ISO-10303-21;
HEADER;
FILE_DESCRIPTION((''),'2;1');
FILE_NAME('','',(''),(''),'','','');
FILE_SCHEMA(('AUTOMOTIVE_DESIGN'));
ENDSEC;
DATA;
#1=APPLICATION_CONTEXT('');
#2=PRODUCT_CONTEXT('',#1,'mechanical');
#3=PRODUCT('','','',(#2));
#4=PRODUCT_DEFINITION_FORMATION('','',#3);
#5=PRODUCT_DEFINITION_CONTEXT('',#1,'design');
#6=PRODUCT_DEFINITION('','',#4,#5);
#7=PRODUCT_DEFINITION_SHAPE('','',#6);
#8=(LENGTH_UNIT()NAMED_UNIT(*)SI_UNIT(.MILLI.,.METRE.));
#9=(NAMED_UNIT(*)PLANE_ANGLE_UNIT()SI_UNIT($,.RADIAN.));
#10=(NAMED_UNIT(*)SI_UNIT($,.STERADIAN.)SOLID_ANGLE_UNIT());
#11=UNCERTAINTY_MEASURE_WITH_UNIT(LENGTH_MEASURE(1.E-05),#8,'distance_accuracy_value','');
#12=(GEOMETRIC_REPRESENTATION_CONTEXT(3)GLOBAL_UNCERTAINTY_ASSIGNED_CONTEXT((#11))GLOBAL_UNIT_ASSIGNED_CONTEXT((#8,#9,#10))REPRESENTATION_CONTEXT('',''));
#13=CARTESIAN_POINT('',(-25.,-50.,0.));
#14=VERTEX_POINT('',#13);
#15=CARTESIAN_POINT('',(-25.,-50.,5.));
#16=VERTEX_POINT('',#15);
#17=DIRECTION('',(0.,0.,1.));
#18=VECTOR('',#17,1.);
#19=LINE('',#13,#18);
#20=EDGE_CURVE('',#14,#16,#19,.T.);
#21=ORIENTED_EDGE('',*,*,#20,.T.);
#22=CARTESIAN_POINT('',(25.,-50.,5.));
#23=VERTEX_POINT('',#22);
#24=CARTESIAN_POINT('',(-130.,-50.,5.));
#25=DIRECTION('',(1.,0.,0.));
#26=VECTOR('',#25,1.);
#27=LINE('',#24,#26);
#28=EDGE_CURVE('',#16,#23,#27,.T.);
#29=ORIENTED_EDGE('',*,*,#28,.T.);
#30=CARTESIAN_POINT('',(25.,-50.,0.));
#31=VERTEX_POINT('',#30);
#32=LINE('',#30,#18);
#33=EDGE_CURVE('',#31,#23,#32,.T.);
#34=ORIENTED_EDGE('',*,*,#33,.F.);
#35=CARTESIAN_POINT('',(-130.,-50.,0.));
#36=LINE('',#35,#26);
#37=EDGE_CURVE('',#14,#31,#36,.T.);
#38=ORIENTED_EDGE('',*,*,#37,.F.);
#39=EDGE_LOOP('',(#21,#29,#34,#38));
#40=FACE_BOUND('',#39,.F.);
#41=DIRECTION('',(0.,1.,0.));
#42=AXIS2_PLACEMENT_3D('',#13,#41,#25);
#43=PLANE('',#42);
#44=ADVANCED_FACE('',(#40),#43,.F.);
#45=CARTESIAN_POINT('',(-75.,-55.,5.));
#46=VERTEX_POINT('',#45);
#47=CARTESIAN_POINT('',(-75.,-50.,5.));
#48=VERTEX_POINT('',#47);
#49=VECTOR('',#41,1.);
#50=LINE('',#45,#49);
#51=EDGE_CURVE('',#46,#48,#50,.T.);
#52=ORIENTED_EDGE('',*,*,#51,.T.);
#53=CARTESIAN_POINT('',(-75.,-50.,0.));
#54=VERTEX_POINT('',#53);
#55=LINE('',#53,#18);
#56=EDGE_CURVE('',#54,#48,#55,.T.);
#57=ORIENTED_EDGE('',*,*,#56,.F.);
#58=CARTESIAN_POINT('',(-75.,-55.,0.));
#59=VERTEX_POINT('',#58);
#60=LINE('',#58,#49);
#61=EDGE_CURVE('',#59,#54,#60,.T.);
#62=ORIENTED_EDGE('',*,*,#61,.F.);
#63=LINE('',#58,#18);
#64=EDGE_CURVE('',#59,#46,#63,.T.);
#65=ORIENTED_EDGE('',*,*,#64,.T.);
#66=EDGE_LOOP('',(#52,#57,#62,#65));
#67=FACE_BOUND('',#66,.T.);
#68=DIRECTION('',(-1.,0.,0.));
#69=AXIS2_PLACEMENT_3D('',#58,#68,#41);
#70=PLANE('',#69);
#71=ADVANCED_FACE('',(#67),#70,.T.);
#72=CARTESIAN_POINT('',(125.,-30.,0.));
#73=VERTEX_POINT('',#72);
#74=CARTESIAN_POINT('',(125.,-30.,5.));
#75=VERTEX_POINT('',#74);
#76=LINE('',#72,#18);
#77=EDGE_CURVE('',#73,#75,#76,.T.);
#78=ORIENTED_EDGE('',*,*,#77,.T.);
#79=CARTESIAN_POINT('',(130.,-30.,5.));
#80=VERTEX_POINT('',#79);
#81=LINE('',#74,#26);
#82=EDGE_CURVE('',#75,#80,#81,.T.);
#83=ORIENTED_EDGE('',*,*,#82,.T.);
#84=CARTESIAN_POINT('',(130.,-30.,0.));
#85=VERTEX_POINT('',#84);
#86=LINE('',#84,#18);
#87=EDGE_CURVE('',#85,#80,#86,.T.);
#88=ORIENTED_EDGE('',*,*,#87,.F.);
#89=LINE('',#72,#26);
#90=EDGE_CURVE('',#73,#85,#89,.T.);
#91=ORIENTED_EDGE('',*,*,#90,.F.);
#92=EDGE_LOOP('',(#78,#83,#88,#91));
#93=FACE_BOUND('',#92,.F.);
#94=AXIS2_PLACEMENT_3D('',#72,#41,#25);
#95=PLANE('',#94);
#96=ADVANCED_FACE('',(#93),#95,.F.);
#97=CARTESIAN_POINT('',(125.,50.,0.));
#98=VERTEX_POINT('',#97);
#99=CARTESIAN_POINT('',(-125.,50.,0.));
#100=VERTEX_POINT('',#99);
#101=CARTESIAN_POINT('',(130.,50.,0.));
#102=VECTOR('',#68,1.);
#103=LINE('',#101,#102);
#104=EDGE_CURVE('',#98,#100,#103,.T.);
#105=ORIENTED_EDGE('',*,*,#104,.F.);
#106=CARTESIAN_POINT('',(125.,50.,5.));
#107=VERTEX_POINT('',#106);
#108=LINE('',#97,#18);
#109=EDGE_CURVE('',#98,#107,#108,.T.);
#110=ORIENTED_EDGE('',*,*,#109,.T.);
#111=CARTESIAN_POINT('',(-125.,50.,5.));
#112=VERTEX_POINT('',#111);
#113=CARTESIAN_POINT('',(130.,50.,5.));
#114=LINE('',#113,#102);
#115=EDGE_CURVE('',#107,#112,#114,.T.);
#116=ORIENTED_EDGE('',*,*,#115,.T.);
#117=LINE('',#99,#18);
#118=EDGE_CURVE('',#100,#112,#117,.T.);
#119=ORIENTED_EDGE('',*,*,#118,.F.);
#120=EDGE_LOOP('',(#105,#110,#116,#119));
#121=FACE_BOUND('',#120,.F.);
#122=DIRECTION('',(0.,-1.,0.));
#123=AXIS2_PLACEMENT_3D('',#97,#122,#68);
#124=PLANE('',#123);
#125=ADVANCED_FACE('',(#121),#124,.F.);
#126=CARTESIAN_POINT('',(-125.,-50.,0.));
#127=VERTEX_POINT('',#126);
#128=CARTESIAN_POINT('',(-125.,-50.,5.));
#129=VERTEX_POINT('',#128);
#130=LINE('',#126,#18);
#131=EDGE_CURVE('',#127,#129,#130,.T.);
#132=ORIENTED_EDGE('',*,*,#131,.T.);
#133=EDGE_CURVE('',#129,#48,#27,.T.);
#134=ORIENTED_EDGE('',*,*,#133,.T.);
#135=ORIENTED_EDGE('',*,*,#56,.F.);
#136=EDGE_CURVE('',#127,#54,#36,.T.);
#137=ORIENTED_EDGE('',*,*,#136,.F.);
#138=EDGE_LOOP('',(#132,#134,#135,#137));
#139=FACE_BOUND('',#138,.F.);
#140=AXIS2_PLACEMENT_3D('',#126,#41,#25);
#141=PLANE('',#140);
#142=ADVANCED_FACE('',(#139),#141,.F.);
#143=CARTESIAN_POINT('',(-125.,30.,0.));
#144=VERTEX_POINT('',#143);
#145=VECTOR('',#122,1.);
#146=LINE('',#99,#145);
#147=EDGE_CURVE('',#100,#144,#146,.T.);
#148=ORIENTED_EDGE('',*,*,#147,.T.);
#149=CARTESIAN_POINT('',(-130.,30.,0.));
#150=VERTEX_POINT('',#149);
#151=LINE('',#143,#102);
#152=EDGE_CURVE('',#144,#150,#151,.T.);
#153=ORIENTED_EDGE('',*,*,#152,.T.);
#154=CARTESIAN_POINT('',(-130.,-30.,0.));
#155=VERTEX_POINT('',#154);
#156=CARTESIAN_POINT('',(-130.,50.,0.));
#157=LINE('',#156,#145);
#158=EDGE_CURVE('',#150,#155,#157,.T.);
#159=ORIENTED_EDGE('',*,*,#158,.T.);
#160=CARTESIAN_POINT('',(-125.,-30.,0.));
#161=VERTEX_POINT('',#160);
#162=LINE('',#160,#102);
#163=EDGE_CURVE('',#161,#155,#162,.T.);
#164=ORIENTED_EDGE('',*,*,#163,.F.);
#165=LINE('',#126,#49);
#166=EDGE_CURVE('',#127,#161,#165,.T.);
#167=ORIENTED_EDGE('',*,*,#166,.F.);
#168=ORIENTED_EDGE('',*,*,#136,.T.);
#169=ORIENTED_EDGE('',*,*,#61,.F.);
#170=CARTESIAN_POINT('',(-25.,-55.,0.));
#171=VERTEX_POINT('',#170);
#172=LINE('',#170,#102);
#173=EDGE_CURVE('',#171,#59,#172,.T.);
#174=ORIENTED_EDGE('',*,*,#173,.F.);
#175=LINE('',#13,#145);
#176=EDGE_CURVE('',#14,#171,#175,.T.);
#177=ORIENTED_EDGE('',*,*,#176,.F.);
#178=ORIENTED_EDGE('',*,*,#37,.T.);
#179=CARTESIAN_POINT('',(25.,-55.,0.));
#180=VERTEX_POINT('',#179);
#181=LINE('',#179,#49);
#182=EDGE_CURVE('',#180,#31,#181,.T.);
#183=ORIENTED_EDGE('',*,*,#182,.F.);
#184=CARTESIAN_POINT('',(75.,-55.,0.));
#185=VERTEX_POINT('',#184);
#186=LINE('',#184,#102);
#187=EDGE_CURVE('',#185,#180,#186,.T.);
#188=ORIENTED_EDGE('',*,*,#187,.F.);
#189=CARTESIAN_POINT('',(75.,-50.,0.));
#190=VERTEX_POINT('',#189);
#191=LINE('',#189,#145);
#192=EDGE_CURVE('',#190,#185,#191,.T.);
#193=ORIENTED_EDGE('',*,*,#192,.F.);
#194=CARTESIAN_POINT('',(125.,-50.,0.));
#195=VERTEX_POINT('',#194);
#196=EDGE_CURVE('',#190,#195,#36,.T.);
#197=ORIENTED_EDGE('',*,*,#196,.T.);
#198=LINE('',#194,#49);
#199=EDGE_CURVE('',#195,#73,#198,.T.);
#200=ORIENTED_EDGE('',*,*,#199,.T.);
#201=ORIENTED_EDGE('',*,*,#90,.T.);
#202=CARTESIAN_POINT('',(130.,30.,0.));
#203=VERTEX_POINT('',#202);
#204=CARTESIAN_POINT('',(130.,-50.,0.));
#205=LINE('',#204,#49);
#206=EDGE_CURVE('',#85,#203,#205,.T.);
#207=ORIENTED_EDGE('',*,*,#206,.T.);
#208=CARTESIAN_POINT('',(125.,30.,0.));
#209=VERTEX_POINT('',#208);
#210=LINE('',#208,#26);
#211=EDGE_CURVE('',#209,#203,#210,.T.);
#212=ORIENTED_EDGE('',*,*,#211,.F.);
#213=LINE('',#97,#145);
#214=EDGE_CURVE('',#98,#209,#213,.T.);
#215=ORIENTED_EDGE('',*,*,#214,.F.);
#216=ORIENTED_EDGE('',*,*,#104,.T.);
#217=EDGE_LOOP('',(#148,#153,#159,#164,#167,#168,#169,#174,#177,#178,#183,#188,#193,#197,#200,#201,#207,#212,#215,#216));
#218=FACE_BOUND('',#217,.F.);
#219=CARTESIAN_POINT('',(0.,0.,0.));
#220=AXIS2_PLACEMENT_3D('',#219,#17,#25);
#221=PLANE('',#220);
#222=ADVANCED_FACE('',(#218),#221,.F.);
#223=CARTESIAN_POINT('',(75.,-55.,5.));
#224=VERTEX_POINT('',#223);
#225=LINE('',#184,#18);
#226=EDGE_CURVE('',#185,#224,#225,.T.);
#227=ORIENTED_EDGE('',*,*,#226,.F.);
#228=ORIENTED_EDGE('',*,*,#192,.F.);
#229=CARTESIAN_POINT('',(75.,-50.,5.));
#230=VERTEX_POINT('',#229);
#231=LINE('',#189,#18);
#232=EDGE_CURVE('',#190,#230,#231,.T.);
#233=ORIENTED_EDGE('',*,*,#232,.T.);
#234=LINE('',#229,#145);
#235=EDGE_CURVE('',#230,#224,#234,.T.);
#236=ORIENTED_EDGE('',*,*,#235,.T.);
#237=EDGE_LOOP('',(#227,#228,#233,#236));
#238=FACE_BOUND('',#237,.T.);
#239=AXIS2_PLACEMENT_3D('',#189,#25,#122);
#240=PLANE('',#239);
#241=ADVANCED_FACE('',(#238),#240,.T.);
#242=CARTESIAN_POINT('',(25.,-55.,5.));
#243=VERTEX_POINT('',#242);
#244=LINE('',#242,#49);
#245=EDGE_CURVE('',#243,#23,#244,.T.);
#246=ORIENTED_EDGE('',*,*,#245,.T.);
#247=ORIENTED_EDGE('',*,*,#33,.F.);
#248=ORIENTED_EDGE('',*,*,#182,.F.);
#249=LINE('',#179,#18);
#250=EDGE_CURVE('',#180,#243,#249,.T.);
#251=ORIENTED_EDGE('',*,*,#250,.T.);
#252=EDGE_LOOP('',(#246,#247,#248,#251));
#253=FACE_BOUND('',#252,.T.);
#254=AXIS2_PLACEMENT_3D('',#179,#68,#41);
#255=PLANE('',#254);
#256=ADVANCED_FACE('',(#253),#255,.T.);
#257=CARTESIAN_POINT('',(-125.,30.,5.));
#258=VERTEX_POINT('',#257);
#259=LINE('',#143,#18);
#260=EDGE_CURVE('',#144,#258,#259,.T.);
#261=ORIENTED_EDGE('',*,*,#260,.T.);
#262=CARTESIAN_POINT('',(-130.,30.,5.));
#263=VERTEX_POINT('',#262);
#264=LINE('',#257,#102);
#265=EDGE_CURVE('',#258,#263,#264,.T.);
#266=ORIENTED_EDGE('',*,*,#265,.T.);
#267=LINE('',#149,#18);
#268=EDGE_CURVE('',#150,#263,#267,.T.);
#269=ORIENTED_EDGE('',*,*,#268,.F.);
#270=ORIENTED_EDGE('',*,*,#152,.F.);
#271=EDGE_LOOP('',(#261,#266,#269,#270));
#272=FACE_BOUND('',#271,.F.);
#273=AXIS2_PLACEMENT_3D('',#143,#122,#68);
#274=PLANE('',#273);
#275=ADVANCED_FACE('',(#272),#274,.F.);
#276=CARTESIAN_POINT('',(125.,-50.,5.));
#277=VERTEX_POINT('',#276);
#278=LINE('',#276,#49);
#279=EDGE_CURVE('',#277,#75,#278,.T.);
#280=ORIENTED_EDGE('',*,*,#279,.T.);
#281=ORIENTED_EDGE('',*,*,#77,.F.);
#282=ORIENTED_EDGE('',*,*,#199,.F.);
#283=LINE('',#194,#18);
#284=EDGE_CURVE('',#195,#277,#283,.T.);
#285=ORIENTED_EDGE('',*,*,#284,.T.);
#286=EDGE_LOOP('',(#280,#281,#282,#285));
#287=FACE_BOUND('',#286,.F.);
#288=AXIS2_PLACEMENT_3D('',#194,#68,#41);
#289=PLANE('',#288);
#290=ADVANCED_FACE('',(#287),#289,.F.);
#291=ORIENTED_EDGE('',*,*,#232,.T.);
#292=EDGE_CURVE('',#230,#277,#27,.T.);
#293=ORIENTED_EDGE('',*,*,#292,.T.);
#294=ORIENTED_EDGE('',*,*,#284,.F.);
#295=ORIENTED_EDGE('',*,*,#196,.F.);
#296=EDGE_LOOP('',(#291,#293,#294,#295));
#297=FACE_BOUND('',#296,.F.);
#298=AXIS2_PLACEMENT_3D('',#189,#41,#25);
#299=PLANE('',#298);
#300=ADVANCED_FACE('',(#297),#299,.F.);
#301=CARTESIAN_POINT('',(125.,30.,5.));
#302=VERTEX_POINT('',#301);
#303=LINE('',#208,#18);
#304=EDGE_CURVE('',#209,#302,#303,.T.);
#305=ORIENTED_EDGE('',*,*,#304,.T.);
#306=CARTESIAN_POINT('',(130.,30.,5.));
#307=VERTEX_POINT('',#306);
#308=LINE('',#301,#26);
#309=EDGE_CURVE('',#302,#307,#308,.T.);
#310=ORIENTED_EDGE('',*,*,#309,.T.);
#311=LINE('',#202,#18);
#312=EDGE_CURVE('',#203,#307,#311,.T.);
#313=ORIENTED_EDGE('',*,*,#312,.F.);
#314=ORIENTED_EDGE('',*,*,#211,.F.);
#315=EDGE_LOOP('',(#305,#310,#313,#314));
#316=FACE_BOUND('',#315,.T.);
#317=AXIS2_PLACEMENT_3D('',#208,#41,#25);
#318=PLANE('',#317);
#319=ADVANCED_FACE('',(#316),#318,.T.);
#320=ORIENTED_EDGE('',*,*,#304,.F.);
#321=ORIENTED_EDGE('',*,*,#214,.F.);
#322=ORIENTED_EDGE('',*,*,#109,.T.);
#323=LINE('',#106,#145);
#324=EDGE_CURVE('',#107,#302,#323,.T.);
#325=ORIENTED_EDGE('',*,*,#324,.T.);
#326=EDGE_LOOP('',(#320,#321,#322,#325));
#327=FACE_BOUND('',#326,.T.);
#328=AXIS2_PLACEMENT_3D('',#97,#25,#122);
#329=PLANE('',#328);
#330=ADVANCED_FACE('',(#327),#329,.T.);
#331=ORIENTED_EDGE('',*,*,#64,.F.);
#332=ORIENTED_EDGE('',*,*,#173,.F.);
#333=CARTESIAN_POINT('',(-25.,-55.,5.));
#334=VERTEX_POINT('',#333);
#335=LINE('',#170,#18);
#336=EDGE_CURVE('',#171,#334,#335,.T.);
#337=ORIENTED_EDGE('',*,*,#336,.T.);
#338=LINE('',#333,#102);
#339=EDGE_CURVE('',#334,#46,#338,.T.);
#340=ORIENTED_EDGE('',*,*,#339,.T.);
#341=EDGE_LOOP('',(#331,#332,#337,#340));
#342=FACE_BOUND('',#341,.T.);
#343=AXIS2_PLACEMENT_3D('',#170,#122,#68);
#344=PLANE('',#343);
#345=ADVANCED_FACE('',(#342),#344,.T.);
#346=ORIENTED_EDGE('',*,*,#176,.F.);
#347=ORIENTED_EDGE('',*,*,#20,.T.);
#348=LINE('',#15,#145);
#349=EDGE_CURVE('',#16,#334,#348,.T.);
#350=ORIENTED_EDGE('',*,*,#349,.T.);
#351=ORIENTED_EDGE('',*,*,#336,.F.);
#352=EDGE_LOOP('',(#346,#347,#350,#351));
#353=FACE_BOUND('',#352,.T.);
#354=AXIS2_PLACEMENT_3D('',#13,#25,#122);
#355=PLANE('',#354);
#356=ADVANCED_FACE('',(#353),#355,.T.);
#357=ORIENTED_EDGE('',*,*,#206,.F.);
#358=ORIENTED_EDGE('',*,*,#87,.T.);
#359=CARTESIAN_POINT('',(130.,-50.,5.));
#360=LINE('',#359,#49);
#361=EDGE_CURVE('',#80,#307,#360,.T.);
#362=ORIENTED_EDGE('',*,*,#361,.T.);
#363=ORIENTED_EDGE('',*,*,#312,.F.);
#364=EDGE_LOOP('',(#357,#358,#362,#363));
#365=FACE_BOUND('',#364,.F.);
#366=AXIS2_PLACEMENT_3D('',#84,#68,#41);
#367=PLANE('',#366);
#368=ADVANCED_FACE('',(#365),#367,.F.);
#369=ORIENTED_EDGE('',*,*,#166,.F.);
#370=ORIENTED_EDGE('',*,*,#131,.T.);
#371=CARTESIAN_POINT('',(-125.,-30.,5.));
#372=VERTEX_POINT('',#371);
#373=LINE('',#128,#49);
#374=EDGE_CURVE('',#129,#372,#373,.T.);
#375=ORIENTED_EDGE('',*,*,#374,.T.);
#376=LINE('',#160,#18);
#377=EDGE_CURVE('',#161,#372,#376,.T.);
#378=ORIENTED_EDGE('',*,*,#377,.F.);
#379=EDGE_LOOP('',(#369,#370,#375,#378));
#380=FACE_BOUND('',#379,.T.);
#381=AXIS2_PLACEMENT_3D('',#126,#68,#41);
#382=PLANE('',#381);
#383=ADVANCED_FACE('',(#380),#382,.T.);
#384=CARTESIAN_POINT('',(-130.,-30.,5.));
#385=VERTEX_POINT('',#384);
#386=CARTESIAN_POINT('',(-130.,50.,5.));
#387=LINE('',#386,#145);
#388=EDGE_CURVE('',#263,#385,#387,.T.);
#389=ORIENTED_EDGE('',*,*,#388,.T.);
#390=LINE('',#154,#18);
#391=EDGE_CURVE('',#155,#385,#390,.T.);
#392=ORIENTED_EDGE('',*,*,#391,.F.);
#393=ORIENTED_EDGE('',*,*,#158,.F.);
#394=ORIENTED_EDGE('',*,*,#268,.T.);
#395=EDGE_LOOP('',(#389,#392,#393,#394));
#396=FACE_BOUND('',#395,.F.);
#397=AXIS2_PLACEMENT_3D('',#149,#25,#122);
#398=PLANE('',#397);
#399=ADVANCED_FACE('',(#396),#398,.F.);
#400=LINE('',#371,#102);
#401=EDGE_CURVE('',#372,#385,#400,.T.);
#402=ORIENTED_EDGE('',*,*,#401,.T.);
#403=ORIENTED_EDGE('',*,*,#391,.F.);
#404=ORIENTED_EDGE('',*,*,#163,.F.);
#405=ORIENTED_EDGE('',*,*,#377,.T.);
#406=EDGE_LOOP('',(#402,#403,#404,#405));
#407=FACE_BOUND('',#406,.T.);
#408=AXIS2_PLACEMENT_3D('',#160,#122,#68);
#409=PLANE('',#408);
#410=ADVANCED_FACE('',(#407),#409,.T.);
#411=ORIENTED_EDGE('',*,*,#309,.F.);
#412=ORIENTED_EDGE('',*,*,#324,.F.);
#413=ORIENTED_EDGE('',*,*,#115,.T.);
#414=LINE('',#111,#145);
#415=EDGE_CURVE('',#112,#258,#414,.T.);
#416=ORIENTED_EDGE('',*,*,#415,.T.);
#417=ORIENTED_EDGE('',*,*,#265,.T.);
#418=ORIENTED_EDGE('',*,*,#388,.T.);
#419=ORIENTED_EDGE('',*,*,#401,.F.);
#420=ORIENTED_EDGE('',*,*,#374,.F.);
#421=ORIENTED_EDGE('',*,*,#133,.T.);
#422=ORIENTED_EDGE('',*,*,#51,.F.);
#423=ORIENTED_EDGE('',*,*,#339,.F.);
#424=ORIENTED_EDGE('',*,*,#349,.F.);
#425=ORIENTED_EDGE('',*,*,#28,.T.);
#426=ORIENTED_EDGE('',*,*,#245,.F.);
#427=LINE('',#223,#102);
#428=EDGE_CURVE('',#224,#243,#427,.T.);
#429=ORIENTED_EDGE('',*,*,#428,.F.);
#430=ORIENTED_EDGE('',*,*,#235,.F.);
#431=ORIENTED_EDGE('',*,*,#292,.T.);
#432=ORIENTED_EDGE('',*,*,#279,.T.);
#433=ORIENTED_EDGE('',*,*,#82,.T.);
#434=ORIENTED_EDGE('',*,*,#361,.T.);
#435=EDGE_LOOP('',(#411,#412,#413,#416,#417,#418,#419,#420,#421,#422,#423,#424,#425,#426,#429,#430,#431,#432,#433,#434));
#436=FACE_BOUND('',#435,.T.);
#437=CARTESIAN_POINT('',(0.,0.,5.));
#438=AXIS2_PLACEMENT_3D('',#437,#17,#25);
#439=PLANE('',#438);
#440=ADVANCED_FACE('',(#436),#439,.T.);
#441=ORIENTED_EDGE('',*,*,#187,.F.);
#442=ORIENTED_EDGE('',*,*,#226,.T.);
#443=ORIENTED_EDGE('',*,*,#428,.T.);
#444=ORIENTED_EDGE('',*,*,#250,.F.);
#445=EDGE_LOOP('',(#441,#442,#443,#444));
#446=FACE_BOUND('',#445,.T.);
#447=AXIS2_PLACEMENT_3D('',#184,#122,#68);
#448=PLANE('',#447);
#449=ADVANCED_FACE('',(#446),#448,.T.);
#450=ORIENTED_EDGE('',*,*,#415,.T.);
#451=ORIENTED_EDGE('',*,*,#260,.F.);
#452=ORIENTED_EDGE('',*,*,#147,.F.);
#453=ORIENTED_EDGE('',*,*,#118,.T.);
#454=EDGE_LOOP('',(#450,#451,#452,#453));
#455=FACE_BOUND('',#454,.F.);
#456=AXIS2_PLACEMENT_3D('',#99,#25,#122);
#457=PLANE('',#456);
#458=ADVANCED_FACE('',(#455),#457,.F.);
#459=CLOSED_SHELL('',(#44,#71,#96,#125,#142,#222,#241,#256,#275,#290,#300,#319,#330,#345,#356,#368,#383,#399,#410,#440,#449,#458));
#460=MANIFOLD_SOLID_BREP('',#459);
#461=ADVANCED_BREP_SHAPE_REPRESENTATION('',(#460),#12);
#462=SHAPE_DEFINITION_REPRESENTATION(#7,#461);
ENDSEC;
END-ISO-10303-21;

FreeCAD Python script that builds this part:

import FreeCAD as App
import Part
import Sketcher

V = App.Vector


def add_polygon(sketch, points):
    """Adds a closed chain of lines whose ends are joined by coincident constraints."""
    first, n = sketch.GeometryCount, len(points)
    for a, b in zip(points, points[1:] + points[:1]):
        sketch.addGeometry(Part.LineSegment(App.Vector(*a, 0), App.Vector(*b, 0)), False)
    for i in range(n):
        sketch.addConstraint(Sketcher.Constraint("Coincident", first + i, 2, first + (i + 1) % n, 1))

doc = App.newDocument("Part")
body = doc.addObject("PartDesign::Body", "Body")

# Sketch on XY plane
sketch1 = body.newObject("Sketcher::SketchObject", "Sketch")
sketch1.AttachmentSupport = (doc.getObject("XY_Plane"), [""])
sketch1.MapMode = "FlatFace"
add_polygon(sketch1, [(-125, -30), (-125, -50), (-75, -50), (-75, -55), (-25, -55), (-25, -50), (25, -50), (25, -55), (75, -55), (75, -50), (125, -50), (125, -30), (130, -30), (130, 30), (125, 30), (125, 50), (-125, 50), (-125, 30), (-130, 30), (-130, -30)])  # lines 0-19
sketch1.addConstraint([
    Sketcher.Constraint("Vertical", 0),
    Sketcher.Constraint("Horizontal", 1),
    Sketcher.Constraint("Vertical", 2),
    Sketcher.Constraint("Horizontal", 3),
    Sketcher.Constraint("Vertical", 4),
    Sketcher.Constraint("Horizontal", 5),
    Sketcher.Constraint("Vertical", 6),
    Sketcher.Constraint("Horizontal", 7),
    Sketcher.Constraint("Vertical", 8),
    Sketcher.Constraint("Horizontal", 9),
    Sketcher.Constraint("Vertical", 10),
    Sketcher.Constraint("Horizontal", 11),
    Sketcher.Constraint("Vertical", 12),
    Sketcher.Constraint("Horizontal", 13),
    Sketcher.Constraint("Vertical", 14),
    Sketcher.Constraint("Horizontal", 15),
    Sketcher.Constraint("Vertical", 16),
    Sketcher.Constraint("Horizontal", 17),
    Sketcher.Constraint("Vertical", 18),
    Sketcher.Constraint("Horizontal", 19),
    Sketcher.Constraint("Symmetric", 0, 2, 14, 2, -1, 1),
    Sketcher.Constraint("Symmetric", 9, 2, 15, 2, -1, 1),
    Sketcher.Constraint("Symmetric", 11, 2, 17, 2, -1, 1),
    Sketcher.Constraint("Symmetric", 3, 2, 6, 2, -2),
    Sketcher.Constraint("Symmetric", 13, 2, 16, 2, -2),
    Sketcher.Constraint("Horizontal", 1, 2, 4, 2),
    Sketcher.Constraint("Horizontal", 11, 2, 18, 2),
    Sketcher.Constraint("Equal", 1, 3),
    Sketcher.Constraint("Equal", 3, 5),
    Sketcher.Constraint("Equal", 5, 7),
    Sketcher.Constraint("Equal", 19, 2),
    Sketcher.Constraint("DistanceX", 1, 1, 1, 2, 50.0),
    Sketcher.Constraint("DistanceX", 11, 1, 11, 2, 5.0),
    Sketcher.Constraint("DistanceY", 0, 2, 0, 1, 20.0),
    Sketcher.Constraint("DistanceY", 0, 2, -1, 1, 50.0),
])
pad1 = body.newObject("PartDesign::Pad", "Pad")
pad1.Profile = sketch1
pad1.Length = 5

doc.recompute()
